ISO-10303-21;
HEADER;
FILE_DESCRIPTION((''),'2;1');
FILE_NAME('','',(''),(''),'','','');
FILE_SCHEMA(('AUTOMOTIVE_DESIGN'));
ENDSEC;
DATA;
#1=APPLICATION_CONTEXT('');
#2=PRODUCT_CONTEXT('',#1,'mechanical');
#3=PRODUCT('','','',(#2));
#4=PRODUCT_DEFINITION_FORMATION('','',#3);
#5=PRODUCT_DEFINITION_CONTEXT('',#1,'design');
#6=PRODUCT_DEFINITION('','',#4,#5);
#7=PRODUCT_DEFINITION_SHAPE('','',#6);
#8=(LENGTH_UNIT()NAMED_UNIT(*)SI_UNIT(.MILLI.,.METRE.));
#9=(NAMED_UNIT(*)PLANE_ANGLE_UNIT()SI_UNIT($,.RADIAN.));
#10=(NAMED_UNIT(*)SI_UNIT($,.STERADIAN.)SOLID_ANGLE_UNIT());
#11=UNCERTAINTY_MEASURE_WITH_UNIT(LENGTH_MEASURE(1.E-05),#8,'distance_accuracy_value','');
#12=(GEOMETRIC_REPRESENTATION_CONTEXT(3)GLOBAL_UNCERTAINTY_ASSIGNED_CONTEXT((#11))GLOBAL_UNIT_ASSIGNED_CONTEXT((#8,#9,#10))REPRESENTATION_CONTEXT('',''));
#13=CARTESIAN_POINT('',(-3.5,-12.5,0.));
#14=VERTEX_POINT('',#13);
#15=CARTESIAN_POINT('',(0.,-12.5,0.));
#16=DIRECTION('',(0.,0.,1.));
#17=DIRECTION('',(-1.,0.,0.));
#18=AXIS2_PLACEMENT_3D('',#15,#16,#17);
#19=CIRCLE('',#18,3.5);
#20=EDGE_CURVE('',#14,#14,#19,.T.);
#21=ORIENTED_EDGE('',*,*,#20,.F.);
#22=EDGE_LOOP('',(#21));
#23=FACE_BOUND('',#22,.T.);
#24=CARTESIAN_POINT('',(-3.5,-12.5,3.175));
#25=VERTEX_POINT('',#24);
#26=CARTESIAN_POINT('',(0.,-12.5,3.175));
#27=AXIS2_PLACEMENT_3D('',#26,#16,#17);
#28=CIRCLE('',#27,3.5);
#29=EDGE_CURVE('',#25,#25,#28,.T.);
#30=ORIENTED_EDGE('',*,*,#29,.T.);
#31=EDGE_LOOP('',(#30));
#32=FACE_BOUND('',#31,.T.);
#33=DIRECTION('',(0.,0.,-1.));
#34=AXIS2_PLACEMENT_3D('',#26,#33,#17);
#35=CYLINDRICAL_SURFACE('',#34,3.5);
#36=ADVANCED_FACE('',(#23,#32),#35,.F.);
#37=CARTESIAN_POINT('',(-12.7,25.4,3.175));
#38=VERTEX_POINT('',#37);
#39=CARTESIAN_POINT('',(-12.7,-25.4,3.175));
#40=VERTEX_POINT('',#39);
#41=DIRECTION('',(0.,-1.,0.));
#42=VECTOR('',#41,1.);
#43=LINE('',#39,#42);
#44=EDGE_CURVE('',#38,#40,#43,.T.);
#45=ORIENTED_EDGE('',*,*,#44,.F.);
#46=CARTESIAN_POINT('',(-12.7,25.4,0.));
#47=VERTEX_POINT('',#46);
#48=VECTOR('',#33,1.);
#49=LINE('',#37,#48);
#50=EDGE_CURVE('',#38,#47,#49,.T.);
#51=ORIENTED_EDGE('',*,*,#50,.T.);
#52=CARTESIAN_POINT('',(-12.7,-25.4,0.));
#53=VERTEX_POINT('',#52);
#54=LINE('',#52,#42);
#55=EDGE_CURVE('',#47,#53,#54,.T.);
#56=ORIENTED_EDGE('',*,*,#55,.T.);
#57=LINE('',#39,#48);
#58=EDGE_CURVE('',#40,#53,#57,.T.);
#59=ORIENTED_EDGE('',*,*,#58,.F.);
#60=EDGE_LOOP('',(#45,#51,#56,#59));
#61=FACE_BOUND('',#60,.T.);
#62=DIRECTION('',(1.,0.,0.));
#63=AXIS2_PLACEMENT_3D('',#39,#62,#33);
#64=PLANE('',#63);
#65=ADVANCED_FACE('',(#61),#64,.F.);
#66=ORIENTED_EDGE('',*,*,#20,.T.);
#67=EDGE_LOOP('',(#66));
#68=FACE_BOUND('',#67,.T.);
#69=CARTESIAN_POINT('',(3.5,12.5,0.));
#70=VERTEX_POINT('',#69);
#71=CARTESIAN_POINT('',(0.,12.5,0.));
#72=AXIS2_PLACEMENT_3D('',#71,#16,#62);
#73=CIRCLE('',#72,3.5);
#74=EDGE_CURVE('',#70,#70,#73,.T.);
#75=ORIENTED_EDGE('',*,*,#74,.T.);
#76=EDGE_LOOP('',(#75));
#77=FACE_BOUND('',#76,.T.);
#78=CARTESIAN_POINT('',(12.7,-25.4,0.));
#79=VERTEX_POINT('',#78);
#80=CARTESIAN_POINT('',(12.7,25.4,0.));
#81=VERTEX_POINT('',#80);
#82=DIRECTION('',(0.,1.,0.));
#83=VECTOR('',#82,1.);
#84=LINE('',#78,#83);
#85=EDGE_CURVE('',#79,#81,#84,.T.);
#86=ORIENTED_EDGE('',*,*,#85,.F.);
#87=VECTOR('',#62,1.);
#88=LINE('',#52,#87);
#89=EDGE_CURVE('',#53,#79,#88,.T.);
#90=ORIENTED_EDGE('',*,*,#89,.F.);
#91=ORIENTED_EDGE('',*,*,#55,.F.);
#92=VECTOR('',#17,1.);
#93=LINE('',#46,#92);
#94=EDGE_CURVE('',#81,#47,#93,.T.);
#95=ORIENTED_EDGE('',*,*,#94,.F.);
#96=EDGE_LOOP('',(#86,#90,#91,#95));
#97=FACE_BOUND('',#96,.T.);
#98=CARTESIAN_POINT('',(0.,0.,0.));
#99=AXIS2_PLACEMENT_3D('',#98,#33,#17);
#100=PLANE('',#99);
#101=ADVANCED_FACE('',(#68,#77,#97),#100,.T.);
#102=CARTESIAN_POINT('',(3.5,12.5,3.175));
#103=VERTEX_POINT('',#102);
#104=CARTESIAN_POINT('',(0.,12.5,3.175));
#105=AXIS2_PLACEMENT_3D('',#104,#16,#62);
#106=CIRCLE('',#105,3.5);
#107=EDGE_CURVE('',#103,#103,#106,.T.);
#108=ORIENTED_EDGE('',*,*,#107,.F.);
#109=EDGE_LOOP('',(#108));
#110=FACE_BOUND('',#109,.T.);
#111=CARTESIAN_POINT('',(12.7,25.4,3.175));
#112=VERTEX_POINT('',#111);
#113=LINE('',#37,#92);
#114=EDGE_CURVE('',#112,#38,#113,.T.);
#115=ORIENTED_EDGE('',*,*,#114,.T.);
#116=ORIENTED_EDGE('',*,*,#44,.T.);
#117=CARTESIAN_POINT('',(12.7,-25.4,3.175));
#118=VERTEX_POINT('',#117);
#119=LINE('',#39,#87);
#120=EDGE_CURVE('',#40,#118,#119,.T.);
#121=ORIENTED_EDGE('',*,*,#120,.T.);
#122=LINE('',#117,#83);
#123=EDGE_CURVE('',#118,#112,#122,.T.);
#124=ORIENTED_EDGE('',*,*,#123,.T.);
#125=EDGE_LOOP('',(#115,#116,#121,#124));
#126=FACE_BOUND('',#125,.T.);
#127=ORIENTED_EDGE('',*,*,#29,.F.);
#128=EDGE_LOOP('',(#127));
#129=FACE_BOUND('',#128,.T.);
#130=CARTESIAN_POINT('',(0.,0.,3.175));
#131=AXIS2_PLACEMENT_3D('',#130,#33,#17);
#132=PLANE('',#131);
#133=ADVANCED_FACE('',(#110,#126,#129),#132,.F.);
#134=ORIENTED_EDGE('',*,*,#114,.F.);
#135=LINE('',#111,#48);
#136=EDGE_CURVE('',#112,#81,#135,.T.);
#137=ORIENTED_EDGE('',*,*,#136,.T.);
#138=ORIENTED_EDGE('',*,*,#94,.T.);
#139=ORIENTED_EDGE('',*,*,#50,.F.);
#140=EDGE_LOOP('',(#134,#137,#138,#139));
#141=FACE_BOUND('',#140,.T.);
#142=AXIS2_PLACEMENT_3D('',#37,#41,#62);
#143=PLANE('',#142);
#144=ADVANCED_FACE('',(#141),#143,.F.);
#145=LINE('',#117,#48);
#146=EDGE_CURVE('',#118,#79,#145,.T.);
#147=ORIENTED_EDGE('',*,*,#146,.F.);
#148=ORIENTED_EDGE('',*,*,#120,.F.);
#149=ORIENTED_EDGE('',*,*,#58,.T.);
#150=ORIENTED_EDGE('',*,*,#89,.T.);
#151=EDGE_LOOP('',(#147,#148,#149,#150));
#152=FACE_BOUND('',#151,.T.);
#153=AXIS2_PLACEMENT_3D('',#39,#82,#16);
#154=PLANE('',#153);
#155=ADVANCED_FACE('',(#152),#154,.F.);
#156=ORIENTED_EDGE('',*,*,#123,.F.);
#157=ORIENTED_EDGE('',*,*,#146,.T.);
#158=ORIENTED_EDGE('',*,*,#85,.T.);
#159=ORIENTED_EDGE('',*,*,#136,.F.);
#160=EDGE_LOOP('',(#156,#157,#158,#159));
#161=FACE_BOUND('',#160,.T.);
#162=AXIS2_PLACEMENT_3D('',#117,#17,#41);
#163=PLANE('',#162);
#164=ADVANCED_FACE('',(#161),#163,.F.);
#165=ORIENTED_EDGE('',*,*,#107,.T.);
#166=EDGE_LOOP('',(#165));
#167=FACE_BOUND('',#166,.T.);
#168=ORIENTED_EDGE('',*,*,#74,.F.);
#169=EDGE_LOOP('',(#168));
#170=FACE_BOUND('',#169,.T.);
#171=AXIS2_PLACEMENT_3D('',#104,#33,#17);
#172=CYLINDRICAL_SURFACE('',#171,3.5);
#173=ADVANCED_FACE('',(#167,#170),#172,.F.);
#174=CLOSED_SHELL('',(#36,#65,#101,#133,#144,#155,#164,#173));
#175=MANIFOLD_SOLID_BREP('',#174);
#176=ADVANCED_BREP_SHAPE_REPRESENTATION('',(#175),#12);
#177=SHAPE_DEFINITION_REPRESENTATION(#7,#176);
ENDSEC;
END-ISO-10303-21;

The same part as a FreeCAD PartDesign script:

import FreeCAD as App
import Part
import Sketcher

V = App.Vector
Q = App.Units.Quantity


def add_polygon(sketch, points):
    """Adds a closed chain of lines whose ends are joined by coincident constraints."""
    first, n = sketch.GeometryCount, len(points)
    for a, b in zip(points, points[1:] + points[:1]):
        sketch.addGeometry(Part.LineSegment(App.Vector(*a, 0), App.Vector(*b, 0)), False)
    for i in range(n):
        sketch.addConstraint(Sketcher.Constraint("Coincident", first + i, 2, first + (i + 1) % n, 1))

doc = App.newDocument("Part")
body = doc.addObject("PartDesign::Body", "Body")

# Sketch on XY plane
sketch1 = doc.addObject("Sketcher::SketchObject", "Sketch")
body.addObject(sketch1)
sketch1.AttachmentSupport = (doc.XY_Plane, [""])
sketch1.MapMode = "FlatFace"
add_polygon(sketch1, [(-12.7, 25.4), (-12.7, -25.4), (12.7, -25.4), (12.7, 25.4)])  # lines 0-3
sketch1.addGeometry(Part.Circle(V(0, -12.5, 0), V(0, 0, 1), 3.5), False)  # 4
sketch1.addGeometry(Part.Circle(V(0, 12.5, 0), V(0, 0, 1), 3.5), False)  # 5
sketch1.addConstraint([
    Sketcher.Constraint("Vertical", 0),
    Sketcher.Constraint("Horizontal", 1),
    Sketcher.Constraint("Vertical", 2),
    Sketcher.Constraint("Horizontal", 3),
    Sketcher.Constraint("Equal", 4, 5),
    Sketcher.Constraint("Symmetric", 4, 3, 5, 3, -1, 1),
    Sketcher.Constraint("Symmetric", 0, 2, 2, 2, -1, 1),
    Sketcher.Constraint("PointOnObject", 4, 3, -2),
    Sketcher.Constraint("DistanceX", 1, 1, 1, 2, Q("1 in")),
    Sketcher.Constraint("DistanceY", 0, 2, 0, 1, Q("2 in")),
    Sketcher.Constraint("Diameter", 4, Q("7 mm")),
    Sketcher.Constraint("DistanceY", 4, 3, -1, 1, Q("12.5 mm")),
])
pad1 = doc.addObject("PartDesign::Pad", "Pad")
body.addObject(pad1)
pad1.Profile = sketch1
pad1.Length = Q("0.125 in")

doc.recompute()
